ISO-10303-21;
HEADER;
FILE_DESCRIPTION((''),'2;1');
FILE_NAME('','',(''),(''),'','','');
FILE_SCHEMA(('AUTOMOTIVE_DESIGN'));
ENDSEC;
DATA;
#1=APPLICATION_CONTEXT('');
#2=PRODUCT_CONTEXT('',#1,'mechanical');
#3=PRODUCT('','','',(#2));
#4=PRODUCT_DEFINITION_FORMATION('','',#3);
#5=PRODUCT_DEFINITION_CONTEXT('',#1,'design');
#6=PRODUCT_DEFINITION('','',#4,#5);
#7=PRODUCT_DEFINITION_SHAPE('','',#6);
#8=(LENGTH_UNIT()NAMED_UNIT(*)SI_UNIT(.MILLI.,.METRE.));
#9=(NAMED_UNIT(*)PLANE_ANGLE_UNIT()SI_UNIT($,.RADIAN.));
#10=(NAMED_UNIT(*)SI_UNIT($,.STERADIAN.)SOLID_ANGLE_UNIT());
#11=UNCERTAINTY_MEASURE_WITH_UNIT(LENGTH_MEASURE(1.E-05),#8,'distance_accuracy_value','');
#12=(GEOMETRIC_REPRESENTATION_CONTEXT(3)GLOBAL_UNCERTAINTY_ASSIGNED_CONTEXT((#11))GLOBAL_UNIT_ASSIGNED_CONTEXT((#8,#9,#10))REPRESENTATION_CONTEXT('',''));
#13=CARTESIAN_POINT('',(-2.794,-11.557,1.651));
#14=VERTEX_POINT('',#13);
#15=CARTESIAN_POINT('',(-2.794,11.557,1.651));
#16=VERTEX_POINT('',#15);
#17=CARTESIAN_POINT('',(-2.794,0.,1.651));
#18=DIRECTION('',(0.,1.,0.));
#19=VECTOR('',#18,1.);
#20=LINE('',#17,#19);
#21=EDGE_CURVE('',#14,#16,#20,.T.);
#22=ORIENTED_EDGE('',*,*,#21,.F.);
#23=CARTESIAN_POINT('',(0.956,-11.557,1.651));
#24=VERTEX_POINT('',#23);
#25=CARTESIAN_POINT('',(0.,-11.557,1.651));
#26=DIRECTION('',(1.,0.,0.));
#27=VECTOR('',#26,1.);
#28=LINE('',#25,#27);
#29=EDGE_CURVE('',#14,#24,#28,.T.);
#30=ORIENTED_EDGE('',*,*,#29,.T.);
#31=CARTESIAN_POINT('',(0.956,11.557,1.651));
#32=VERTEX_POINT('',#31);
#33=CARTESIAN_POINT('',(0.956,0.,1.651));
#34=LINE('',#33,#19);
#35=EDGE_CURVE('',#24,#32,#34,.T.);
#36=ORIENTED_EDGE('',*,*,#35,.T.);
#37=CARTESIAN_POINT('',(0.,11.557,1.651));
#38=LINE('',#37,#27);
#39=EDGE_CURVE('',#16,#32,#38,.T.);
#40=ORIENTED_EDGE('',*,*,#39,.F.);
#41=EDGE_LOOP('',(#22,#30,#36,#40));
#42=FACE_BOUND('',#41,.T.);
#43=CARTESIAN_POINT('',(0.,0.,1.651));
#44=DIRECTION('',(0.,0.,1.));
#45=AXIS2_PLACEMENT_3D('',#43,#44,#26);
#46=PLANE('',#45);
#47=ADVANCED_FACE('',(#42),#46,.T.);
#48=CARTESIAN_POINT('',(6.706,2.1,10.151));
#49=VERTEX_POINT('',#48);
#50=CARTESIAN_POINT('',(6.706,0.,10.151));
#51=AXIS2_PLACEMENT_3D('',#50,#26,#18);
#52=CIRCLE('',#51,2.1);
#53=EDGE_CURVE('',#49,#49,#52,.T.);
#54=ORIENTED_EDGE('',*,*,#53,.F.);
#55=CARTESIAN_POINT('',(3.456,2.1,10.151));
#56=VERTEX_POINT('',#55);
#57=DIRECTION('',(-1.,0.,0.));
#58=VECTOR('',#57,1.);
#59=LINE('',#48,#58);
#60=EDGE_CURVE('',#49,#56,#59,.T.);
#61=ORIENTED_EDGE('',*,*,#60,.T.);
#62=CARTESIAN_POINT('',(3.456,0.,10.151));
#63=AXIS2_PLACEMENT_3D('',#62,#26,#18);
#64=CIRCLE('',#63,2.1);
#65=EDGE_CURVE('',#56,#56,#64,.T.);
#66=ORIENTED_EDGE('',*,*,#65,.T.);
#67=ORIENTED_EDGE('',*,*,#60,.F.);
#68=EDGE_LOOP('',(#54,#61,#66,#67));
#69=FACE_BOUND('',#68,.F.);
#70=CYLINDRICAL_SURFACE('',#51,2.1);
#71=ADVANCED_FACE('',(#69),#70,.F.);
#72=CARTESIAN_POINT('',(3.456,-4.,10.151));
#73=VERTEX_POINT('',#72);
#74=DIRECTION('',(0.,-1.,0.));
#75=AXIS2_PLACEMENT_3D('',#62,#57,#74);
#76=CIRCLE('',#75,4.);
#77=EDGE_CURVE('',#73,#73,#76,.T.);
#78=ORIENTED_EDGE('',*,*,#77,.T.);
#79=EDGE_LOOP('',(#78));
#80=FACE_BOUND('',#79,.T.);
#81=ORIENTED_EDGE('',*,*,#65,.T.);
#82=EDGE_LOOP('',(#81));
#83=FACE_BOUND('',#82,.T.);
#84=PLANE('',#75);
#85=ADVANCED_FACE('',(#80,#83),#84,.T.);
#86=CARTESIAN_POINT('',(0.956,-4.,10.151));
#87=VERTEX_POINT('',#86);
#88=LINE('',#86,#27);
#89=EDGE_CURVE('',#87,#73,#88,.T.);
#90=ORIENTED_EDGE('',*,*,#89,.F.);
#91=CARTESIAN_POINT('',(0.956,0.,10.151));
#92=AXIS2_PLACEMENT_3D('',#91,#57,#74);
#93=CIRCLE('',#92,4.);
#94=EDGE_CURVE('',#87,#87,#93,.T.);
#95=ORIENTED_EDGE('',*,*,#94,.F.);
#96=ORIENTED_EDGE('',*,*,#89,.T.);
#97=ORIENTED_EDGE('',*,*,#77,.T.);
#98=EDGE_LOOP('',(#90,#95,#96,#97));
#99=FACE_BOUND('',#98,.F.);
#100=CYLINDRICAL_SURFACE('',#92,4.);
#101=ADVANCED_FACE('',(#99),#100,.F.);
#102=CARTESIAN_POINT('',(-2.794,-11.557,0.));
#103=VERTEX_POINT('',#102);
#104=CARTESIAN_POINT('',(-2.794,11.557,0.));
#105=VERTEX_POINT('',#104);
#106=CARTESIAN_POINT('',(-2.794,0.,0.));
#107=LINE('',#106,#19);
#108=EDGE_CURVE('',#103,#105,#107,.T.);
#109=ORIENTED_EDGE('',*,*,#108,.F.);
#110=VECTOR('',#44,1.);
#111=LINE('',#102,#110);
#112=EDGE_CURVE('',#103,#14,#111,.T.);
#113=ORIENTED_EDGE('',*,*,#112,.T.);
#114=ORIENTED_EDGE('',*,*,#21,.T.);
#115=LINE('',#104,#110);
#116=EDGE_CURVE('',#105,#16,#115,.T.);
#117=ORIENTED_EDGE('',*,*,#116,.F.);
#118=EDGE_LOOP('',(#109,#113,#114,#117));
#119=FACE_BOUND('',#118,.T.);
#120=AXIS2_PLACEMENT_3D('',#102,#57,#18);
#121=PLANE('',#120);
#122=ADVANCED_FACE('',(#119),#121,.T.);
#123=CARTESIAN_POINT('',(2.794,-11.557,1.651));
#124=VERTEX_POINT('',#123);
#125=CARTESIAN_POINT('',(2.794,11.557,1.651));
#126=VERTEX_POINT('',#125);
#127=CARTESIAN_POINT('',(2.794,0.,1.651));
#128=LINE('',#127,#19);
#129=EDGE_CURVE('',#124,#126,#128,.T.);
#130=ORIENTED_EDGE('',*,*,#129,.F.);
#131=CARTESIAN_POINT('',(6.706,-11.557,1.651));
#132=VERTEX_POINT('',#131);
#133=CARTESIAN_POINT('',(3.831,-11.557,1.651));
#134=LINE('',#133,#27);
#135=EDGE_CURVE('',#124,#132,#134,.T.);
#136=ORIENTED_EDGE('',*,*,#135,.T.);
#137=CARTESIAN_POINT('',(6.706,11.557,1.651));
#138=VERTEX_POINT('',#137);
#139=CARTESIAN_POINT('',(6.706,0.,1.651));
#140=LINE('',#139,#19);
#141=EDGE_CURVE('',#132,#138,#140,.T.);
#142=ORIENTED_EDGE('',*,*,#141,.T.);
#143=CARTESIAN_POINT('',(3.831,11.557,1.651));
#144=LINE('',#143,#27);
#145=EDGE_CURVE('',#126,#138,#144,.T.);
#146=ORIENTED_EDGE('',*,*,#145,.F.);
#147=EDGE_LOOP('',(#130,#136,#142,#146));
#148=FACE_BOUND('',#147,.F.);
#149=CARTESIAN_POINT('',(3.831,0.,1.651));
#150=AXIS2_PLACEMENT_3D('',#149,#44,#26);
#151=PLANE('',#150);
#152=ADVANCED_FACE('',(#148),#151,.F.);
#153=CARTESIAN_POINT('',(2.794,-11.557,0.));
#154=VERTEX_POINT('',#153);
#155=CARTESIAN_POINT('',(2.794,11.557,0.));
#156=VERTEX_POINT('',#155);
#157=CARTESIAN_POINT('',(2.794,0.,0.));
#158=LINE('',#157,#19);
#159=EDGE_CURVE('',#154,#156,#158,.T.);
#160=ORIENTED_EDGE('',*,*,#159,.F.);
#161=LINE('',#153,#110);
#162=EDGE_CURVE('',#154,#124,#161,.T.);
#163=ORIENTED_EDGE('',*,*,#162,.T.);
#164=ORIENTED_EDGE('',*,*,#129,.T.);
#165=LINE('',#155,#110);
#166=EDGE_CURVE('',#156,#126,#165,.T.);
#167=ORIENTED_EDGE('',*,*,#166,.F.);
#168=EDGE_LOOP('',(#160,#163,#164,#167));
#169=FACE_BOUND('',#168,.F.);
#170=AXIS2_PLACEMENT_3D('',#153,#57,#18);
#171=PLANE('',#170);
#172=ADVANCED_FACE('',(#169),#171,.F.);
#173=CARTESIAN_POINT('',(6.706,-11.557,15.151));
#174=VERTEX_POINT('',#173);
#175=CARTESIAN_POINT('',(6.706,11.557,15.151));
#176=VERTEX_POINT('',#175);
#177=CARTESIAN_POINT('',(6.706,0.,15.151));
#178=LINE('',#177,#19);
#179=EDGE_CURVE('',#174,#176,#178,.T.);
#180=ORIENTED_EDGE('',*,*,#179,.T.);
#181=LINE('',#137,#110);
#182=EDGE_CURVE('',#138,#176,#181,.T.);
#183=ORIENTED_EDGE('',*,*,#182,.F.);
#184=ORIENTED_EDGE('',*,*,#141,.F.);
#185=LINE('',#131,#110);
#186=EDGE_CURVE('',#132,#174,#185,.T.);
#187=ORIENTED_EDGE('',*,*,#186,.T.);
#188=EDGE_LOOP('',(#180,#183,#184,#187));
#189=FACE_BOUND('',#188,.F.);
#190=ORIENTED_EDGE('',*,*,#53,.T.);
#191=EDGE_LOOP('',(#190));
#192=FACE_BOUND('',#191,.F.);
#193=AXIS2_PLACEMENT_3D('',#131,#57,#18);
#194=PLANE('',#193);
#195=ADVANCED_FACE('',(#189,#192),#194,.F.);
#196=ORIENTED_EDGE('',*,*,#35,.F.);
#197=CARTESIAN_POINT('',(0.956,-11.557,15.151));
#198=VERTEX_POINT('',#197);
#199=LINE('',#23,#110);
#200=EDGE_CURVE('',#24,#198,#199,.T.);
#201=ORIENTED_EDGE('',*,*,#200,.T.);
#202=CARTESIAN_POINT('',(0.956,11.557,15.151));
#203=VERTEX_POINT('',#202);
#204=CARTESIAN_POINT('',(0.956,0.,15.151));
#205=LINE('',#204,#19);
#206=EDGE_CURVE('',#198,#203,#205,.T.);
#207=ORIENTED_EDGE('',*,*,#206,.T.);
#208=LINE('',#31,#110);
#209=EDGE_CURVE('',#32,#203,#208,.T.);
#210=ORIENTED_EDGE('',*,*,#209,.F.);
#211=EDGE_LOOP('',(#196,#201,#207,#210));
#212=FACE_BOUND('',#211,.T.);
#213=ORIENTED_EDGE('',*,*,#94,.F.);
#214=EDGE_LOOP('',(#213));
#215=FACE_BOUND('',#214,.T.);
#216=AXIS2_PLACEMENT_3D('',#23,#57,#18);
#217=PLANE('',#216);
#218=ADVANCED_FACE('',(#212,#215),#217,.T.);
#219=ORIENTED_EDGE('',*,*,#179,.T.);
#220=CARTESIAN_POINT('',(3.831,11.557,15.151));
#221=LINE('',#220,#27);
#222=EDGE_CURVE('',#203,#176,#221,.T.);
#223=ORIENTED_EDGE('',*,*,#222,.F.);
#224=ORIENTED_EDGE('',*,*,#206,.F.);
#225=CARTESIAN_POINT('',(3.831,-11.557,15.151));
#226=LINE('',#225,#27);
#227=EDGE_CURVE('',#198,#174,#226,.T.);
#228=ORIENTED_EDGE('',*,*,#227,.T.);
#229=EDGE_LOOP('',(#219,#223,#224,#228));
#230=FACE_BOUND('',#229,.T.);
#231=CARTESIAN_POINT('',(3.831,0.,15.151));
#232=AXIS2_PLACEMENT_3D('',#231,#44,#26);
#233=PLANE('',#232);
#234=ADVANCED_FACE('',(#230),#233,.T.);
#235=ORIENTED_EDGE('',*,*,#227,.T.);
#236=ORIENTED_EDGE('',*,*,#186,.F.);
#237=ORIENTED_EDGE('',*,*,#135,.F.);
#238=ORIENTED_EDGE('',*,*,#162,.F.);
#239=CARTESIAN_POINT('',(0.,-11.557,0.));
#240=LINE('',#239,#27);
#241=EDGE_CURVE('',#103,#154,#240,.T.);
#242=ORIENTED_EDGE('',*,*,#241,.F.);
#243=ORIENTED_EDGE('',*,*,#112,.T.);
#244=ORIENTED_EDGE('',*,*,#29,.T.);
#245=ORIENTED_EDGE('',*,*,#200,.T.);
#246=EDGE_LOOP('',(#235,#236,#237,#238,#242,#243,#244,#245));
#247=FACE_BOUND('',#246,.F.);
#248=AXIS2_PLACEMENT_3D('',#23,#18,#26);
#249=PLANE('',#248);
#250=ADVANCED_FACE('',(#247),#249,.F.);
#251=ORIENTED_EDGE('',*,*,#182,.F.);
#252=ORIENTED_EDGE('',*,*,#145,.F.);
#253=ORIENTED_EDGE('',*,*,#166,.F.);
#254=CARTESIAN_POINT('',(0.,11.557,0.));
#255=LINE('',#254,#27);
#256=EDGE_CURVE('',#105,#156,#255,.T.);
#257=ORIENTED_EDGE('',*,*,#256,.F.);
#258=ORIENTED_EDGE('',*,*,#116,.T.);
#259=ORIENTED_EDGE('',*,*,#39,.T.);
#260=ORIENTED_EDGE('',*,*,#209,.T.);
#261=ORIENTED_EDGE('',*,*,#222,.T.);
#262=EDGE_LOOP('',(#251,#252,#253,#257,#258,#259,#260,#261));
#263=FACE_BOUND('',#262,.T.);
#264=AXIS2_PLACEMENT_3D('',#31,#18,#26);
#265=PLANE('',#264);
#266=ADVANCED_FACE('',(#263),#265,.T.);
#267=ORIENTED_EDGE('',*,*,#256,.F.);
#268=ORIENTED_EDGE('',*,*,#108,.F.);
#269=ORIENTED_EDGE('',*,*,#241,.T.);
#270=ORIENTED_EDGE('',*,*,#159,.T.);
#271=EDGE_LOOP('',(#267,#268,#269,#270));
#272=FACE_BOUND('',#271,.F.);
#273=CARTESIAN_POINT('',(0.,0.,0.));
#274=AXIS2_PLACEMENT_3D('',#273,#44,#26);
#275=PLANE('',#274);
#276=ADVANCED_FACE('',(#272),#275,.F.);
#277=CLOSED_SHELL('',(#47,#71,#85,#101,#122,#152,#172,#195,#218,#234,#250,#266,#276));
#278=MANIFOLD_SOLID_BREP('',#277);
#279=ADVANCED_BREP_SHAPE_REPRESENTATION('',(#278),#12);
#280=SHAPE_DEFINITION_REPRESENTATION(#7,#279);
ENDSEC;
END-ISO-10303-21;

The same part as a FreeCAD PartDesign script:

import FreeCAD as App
import Part
import Sketcher
Q = App.Units.Quantity

doc = App.newDocument("Part")
body = doc.addObject("PartDesign::Body", "Body")

# Sketch on XY plane
sketch1 = doc.addObject("Sketcher::SketchObject", "Sketch")
body.addObject(sketch1)
sketch1.AttachmentSupport = (doc.XY_Plane, [""])
sketch1.MapMode = "FlatFace"
sketch1.addGeometry([
    Part.LineSegment(App.Vector(-3, 12, 0), App.Vector(-3, -12, 0)),
    Part.LineSegment(App.Vector(-3, -12, 0), App.Vector(3, -12, 0)),
    Part.LineSegment(App.Vector(3, -12, 0), App.Vector(3, 12, 0)),
    Part.LineSegment(App.Vector(3, 12, 0), App.Vector(-3, 12, 0)),
], False)
sketch1.addConstraint([
    Sketcher.Constraint("Coincident", 0, 2, 1, 1),
    Sketcher.Constraint("Coincident", 1, 2, 2, 1),
    Sketcher.Constraint("Coincident", 2, 2, 3, 1),
    Sketcher.Constraint("Coincident", 3, 2, 0, 1),
    Sketcher.Constraint("Vertical", 0),
    Sketcher.Constraint("Horizontal", 1),
    Sketcher.Constraint("Vertical", 2),
    Sketcher.Constraint("Horizontal", 3),
    Sketcher.Constraint("Symmetric", 0, 2, 2, 2, -1, 1),
    Sketcher.Constraint("DistanceX", 1, 1, 1, 2, Q("5.588 mm")),
    Sketcher.Constraint("DistanceY", 0, 2, 0, 1, Q("23.114 mm")),
])
pad1 = doc.addObject("PartDesign::Pad", "Pad")
body.addObject(pad1)
pad1.Profile = sketch1
pad1.Length = 1.651

# Sketch on XY plane
sketch2 = doc.addObject("Sketcher::SketchObject", "Sketch001")
body.addObject(sketch2)
sketch2.AttachmentSupport = (doc.XY_Plane, [""])
sketch2.MapMode = "FlatFace"
sketch2.AttachmentOffset = App.Placement(App.Vector(0, 0, 1.651), App.Rotation())
sketch2.addGeometry([
    Part.LineSegment(App.Vector(1, 12, 0), App.Vector(1, -12, 0)),
    Part.LineSegment(App.Vector(1, -12, 0), App.Vector(7, -12, 0)),
    Part.LineSegment(App.Vector(7, -12, 0), App.Vector(7, 12, 0)),
    Part.LineSegment(App.Vector(7, 12, 0), App.Vector(1, 12, 0)),
], False)
sketch2.addConstraint([
    Sketcher.Constraint("Coincident", 0, 2, 1, 1),
    Sketcher.Constraint("Coincident", 1, 2, 2, 1),
    Sketcher.Constraint("Coincident", 2, 2, 3, 1),
    Sketcher.Constraint("Coincident", 3, 2, 0, 1),
    Sketcher.Constraint("Vertical", 0),
    Sketcher.Constraint("Horizontal", 1),
    Sketcher.Constraint("Vertical", 2),
    Sketcher.Constraint("Horizontal", 3),
    Sketcher.Constraint("DistanceX", 1, 1, 1, 2, Q("5.75 mm")),
    Sketcher.Constraint("DistanceY", 0, 2, 0, 1, Q("23.114 mm")),
    Sketcher.Constraint("DistanceX", -1, 1, 0, 2, Q("0.956 mm")),
    Sketcher.Constraint("DistanceY", 0, 2, -1, 1, Q("11.557 mm")),
])
pad2 = doc.addObject("PartDesign::Pad", "Pad001")
body.addObject(pad2)
pad2.Profile = sketch2
pad2.Length = 13.5

# Sketch on YZ plane
sketch3 = doc.addObject("Sketcher::SketchObject", "Sketch002")
body.addObject(sketch3)
sketch3.AttachmentSupport = (doc.YZ_Plane, [""])
sketch3.MapMode = "FlatFace"
sketch3.AttachmentOffset = App.Placement(App.Vector(0, 0, 6.706), App.Rotation())
sketch3.addGeometry(Part.Circle(App.Vector(0, 10.2, 0), App.Vector(0, 0, 1), 2.1), False)
sketch3.addConstraint([
    Sketcher.Constraint("PointOnObject", 0, 3, -2),
    Sketcher.Constraint("Diameter", 0, Q("4.2 mm")),
    Sketcher.Constraint("DistanceY", -1, 1, 0, 3, Q("10.151 mm")),
])
pocket1 = doc.addObject("PartDesign::Pocket", "Pocket")
body.addObject(pocket1)
pocket1.Profile = sketch3
pocket1.Length = 25.4

# Sketch on YZ plane
sketch4 = doc.addObject("Sketcher::SketchObject", "Sketch003")
body.addObject(sketch4)
sketch4.AttachmentSupport = (doc.YZ_Plane, [""])
sketch4.MapMode = "FlatFace"
sketch4.AttachmentOffset = App.Placement(App.Vector(0, 0, 0.956), App.Rotation())
sketch4.addGeometry(Part.Circle(App.Vector(0, 10.2, 0), App.Vector(0, 0, 1), 4), False)
sketch4.addConstraint([
    Sketcher.Constraint("PointOnObject", 0, 3, -2),
    Sketcher.Constraint("Diameter", 0, Q("8 mm")),
    Sketcher.Constraint("DistanceY", -1, 1, 0, 3, Q("10.151 mm")),
])
pocket2 = doc.addObject("PartDesign::Pocket", "Pocket001")
body.addObject(pocket2)
pocket2.Profile = sketch4
pocket2.Length = 2.5
pocket2.Reversed = True

doc.recompute()
